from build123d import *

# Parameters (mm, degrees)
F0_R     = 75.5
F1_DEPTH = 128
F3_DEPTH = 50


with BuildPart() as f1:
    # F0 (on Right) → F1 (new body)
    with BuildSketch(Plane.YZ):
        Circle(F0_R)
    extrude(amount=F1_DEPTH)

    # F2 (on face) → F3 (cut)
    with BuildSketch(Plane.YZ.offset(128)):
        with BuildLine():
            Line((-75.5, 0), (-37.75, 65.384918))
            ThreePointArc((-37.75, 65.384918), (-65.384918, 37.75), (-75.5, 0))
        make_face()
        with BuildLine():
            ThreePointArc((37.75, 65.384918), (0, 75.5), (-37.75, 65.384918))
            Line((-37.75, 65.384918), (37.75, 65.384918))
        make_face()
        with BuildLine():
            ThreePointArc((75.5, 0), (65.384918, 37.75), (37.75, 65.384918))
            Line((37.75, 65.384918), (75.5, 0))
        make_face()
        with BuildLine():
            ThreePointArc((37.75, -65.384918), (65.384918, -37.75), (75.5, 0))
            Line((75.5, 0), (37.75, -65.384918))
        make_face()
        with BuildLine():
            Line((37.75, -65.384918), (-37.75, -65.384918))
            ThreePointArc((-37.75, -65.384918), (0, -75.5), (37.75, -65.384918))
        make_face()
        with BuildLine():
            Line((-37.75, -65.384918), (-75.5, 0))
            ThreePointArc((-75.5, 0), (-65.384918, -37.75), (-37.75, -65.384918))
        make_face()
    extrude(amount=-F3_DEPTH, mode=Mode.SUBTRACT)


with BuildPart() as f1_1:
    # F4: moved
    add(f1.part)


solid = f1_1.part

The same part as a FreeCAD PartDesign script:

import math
import FreeCAD as App
import Part
import Sketcher

V = App.Vector
Q = App.Units.Quantity

doc = App.newDocument("Part")
body = doc.addObject("PartDesign::Body", "Body")

# Sketch on YZ plane
sketch1 = body.newObject("Sketcher::SketchObject", "Sketch")
sketch1.AttachmentSupport = (doc.getObject("YZ_Plane"), [""])
sketch1.MapMode = "FlatFace"
sketch1.addGeometry(Part.Circle(V(0, 0, 0), V(0, 0, 1), 76), False)
sketch1.addConstraint(Sketcher.Constraint("Coincident", 0, 3, -1, 1))
sketch1.addConstraint(Sketcher.Constraint("Diameter", 0, 151.0))
pad1 = body.newObject("PartDesign::Pad", "Pad")
pad1.Profile = sketch1
pad1.Length = 128

# Sketch on YZ plane
sketch2 = body.newObject("Sketcher::SketchObject", "Sketch001")
sketch2.AttachmentSupport = (doc.getObject("YZ_Plane"), [""])
sketch2.MapMode = "FlatFace"
sketch2.AttachmentOffset = App.Placement(V(0, 0, 128), App.Rotation())
sketch2.addGeometry(Part.LineSegment(V(-76, 0, 0), V(-38, 65, 0)), False)
sketch2.addGeometry(Part.ArcOfCircle(Part.Circle(V(0, 0, 0), V(0, 0, 1), 75), math.radians(120), math.radians(180)), False)
sketch2.addGeometry(Part.ArcOfCircle(Part.Circle(V(0, 0, 0), V(0, 0, 1), 76), math.radians(60), math.radians(120)), False)
sketch2.addGeometry(Part.LineSegment(V(-38, 65, 0), V(38, 65, 0)), False)
sketch2.addGeometry(Part.ArcOfCircle(Part.Circle(V(0, 0, 0), V(0, 0, 1), 75), math.radians(0), math.radians(60)), False)
sketch2.addGeometry(Part.LineSegment(V(38, 65, 0), V(76, 0, 0)), False)
sketch2.addGeometry(Part.ArcOfCircle(Part.Circle(V(0, 0, 0), V(0, 0, 1), 75), math.radians(-60), math.radians(0)), False)
sketch2.addGeometry(Part.LineSegment(V(76, 0, 0), V(38, -65, 0)), False)
sketch2.addGeometry(Part.LineSegment(V(38, -65, 0), V(-38, -65, 0)), False)
sketch2.addGeometry(Part.ArcOfCircle(Part.Circle(V(0, 0, 0), V(0, 0, 1), 76), math.radians(-120), math.radians(-60)), False)
sketch2.addGeometry(Part.LineSegment(V(-38, -65, 0), V(-76, 0, 0)), False)
sketch2.addGeometry(Part.ArcOfCircle(Part.Circle(V(0, 0, 0), V(0, 0, 1), 75), math.radians(180), math.radians(240)), False)
sketch2.addConstraint(Sketcher.Constraint("Coincident", 0, 1, 1, 2))
sketch2.addConstraint(Sketcher.Constraint("Coincident", 1, 1, 0, 2))
sketch2.addConstraint(Sketcher.Constraint("Coincident", 2, 1, 3, 2))
sketch2.addConstraint(Sketcher.Constraint("Coincident", 3, 1, 2, 2))
sketch2.addConstraint(Sketcher.Constraint("Coincident", 4, 1, 5, 2))
sketch2.addConstraint(Sketcher.Constraint("Coincident", 5, 1, 4, 2))
sketch2.addConstraint(Sketcher.Constraint("Coincident", 6, 1, 7, 2))
sketch2.addConstraint(Sketcher.Constraint("Coincident", 7, 1, 6, 2))
sketch2.addConstraint(Sketcher.Constraint("Coincident", 8, 1, 9, 2))
sketch2.addConstraint(Sketcher.Constraint("Coincident", 9, 1, 8, 2))
sketch2.addConstraint(Sketcher.Constraint("Coincident", 10, 1, 11, 2))
sketch2.addConstraint(Sketcher.Constraint("Coincident", 11, 1, 10, 2))
sketch2.addConstraint(Sketcher.Constraint("Horizontal", 3))
sketch2.addConstraint(Sketcher.Constraint("Horizontal", 8))
sketch2.addConstraint(Sketcher.Constraint("Coincident", 1, 3, -1, 1))
sketch2.addConstraint(Sketcher.Constraint("Coincident", 2, 3, -1, 1))
sketch2.addConstraint(Sketcher.Constraint("Coincident", 4, 3, -1, 1))
sketch2.addConstraint(Sketcher.Constraint("Coincident", 6, 3, -1, 1))
sketch2.addConstraint(Sketcher.Constraint("Coincident", 9, 3, -1, 1))
sketch2.addConstraint(Sketcher.Constraint("Coincident", 11, 3, -1, 1))
sketch2.addConstraint(Sketcher.Constraint("Coincident", 3, 1, 1, 1))
sketch2.addConstraint(Sketcher.Constraint("Coincident", 5, 1, 2, 1))
sketch2.addConstraint(Sketcher.Constraint("Coincident", 7, 1, 4, 1))
sketch2.addConstraint(Sketcher.Constraint("Coincident", 8, 1, 6, 1))
sketch2.addConstraint(Sketcher.Constraint("Coincident", 10, 1, 9, 1))
sketch2.addConstraint(Sketcher.Constraint("PointOnObject", 0, 1, -1))
sketch2.addConstraint(Sketcher.Constraint("PointOnObject", 4, 1, -1))
sketch2.addConstraint(Sketcher.Constraint("PointOnObject", 11, 1, -1))
sketch2.addConstraint(Sketcher.Constraint("Parallel", 0, 7))
sketch2.addConstraint(Sketcher.Constraint("Radius", 1, 75.5))
sketch2.addConstraint(Sketcher.Constraint("Angle", 0, Q("60 deg")))
pocket1 = body.newObject("PartDesign::Pocket", "Pocket")
pocket1.Profile = sketch2
pocket1.Length = 50

doc.recompute()
